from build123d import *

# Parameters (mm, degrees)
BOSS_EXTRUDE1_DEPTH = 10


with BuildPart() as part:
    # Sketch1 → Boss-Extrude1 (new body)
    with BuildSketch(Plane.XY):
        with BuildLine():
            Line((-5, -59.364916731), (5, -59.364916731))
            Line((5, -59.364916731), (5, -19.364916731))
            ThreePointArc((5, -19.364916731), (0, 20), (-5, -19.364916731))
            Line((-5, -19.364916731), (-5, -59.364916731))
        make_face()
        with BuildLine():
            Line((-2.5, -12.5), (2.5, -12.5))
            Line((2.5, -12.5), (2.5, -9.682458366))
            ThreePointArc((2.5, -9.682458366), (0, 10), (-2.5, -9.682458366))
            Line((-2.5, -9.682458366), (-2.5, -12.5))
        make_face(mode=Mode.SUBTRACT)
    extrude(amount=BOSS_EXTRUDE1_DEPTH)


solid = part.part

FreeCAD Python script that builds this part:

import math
import FreeCAD as App
import Part
import Sketcher

doc = App.newDocument("Part")
body = doc.addObject("PartDesign::Body", "Body")

sketch1 = body.newObject("Sketcher::SketchObject", "Sketch")
sketch1.AttachmentSupport = (doc.getObject("XY_Plane"), [""])
sketch1.MapMode = "FlatFace"
sketch1.addGeometry(Part.LineSegment(App.Vector(-5, -59.4, 0), App.Vector(5, -59.4, 0)), False)
sketch1.addGeometry(Part.LineSegment(App.Vector(5, -59.4, 0), App.Vector(5, -19.4, 0)), False)
sketch1.addGeometry(Part.ArcOfCircle(Part.Circle(App.Vector(0, 0, 0), App.Vector(0, 0, 1), 20), math.radians(-76), math.radians(256)), False)
sketch1.addGeometry(Part.LineSegment(App.Vector(-5, -19.4, 0), App.Vector(-5, -59.4, 0)), False)
sketch1.addGeometry(Part.LineSegment(App.Vector(2.5, -12.5, 0), App.Vector(-2.5, -12.5, 0)), False)
sketch1.addGeometry(Part.LineSegment(App.Vector(-2.5, -12.5, 0), App.Vector(-2.5, -9.7, 0)), False)
sketch1.addGeometry(Part.ArcOfCircle(Part.Circle(App.Vector(0, 0, 0), App.Vector(0, 0, 1), 10), math.radians(-76), math.radians(256)), False)
sketch1.addGeometry(Part.LineSegment(App.Vector(2.5, -9.7, 0), App.Vector(2.5, -12.5, 0)), False)
sketch1.addConstraint(Sketcher.Constraint("Coincident", 0, 2, 1, 1))
sketch1.addConstraint(Sketcher.Constraint("Coincident", 1, 2, 2, 1))
sketch1.addConstraint(Sketcher.Constraint("Coincident", 2, 2, 3, 1))
sketch1.addConstraint(Sketcher.Constraint("Coincident", 3, 2, 0, 1))
sketch1.addConstraint(Sketcher.Constraint("Coincident", 4, 2, 5, 1))
sketch1.addConstraint(Sketcher.Constraint("Coincident", 5, 2, 6, 2))
sketch1.addConstraint(Sketcher.Constraint("Coincident", 6, 1, 7, 1))
sketch1.addConstraint(Sketcher.Constraint("Coincident", 7, 2, 4, 1))
sketch1.addConstraint(Sketcher.Constraint("Horizontal", 0))
sketch1.addConstraint(Sketcher.Constraint("Vertical", 1))
sketch1.addConstraint(Sketcher.Constraint("Vertical", 3))
sketch1.addConstraint(Sketcher.Constraint("Horizontal", 4))
sketch1.addConstraint(Sketcher.Constraint("Vertical", 5))
sketch1.addConstraint(Sketcher.Constraint("Vertical", 7))
sketch1.addConstraint(Sketcher.Constraint("Coincident", 2, 3, -1, 1))
sketch1.addConstraint(Sketcher.Constraint("Coincident", 6, 3, -1, 1))
sketch1.addConstraint(Sketcher.Constraint("Horizontal", 1, 2, 2, 2))
sketch1.addConstraint(Sketcher.Constraint("Horizontal", 5, 2, 6, 1))
sketch1.addConstraint(Sketcher.Constraint("Radius", 2, 20.0))
sketch1.addConstraint(Sketcher.Constraint("Radius", 6, 10.0))
sketch1.addConstraint(Sketcher.Constraint("DistanceX", 0, 1, 0, 2, 10.0))
sketch1.addConstraint(Sketcher.Constraint("DistanceX", 4, 2, 4, 1, 5.0))
sketch1.addConstraint(Sketcher.Constraint("DistanceY", 1, 1, 1, 2, 40.0))
sketch1.addConstraint(Sketcher.Constraint("DistanceY", 4, 2, -1, 1, 12.5))
pad1 = body.newObject("PartDesign::Pad", "Pad")
pad1.Profile = sketch1
pad1.Length = 10

doc.recompute()
